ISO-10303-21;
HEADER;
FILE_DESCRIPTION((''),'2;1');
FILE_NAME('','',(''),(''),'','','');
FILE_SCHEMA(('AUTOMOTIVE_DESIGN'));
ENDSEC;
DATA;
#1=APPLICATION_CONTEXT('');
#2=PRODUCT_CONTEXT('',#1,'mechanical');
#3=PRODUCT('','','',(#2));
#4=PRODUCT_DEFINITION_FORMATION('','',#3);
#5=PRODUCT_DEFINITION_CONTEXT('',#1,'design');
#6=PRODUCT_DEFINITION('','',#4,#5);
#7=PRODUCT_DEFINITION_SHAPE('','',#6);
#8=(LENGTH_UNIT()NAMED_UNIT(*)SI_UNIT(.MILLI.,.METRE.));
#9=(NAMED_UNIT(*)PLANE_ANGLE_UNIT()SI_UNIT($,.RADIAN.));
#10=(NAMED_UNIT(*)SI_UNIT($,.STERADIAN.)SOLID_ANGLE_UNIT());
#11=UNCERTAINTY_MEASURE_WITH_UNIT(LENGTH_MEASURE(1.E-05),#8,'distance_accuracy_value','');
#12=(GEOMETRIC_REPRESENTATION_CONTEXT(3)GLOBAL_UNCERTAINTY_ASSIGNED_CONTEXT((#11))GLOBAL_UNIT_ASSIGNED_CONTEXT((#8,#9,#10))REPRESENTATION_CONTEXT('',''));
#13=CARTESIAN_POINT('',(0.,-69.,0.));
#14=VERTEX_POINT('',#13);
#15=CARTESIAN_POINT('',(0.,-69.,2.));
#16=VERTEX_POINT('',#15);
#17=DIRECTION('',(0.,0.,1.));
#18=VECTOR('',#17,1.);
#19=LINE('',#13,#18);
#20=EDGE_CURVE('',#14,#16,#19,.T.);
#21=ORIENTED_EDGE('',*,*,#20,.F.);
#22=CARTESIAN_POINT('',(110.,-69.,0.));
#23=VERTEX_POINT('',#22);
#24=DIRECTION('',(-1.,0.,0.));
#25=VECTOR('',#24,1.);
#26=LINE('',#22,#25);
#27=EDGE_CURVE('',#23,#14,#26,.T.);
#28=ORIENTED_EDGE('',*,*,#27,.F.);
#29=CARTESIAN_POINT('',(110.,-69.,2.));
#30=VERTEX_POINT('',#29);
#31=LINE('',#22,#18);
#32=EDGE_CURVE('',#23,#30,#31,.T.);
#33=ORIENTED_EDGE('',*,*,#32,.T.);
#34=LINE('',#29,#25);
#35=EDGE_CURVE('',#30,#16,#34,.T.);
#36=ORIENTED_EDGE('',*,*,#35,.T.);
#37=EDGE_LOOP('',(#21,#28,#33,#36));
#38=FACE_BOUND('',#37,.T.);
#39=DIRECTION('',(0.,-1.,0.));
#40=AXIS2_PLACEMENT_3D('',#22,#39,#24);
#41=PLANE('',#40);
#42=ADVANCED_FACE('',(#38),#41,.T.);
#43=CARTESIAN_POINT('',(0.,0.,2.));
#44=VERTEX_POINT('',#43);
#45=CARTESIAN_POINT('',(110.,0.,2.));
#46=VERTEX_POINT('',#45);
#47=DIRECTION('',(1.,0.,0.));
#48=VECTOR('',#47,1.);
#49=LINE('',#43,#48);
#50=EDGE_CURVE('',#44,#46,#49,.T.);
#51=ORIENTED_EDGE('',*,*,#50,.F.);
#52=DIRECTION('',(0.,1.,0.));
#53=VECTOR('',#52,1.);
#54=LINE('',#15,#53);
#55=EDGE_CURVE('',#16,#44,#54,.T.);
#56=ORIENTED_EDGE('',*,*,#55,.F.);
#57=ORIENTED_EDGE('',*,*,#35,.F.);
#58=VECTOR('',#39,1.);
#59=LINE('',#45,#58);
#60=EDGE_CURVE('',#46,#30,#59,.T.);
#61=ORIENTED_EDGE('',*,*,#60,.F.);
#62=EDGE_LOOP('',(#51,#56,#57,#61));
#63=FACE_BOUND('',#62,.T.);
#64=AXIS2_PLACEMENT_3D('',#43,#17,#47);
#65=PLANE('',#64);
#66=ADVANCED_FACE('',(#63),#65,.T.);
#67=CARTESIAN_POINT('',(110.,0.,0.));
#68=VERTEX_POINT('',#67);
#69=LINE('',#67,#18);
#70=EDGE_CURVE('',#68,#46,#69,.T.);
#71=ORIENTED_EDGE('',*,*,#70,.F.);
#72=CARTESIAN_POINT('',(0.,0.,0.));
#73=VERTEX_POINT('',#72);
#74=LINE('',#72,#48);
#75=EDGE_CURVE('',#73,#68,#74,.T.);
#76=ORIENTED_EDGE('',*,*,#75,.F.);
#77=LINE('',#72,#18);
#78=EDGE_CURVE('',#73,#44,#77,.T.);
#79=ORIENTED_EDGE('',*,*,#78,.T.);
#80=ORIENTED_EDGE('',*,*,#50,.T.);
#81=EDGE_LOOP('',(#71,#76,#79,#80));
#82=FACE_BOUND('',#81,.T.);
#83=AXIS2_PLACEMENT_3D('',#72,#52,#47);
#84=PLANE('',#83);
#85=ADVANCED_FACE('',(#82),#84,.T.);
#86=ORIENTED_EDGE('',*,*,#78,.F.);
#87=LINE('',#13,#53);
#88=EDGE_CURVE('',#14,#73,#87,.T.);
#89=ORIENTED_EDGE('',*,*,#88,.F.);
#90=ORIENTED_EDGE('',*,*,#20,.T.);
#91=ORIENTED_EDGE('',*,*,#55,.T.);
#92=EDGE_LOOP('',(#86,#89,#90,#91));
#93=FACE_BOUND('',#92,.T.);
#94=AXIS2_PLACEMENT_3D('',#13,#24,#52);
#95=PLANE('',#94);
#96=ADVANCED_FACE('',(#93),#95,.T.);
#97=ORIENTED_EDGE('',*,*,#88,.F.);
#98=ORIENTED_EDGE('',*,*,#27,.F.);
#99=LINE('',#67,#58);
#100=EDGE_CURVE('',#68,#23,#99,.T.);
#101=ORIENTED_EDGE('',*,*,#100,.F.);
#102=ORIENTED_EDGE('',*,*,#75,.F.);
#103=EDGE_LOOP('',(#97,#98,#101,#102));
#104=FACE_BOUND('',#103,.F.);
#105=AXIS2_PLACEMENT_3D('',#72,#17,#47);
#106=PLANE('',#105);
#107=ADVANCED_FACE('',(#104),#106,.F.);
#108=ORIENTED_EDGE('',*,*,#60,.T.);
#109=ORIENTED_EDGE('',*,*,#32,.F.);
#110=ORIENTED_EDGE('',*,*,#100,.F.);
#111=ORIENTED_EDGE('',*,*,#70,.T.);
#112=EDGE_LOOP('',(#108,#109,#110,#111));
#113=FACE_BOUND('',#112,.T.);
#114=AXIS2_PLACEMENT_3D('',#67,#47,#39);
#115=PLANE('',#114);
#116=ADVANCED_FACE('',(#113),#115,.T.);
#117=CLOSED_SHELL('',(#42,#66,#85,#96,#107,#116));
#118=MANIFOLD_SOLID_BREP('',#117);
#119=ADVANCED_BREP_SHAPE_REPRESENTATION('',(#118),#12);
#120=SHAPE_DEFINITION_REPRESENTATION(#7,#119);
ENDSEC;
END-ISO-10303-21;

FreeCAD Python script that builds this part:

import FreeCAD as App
import Part
import Sketcher

V = App.Vector


def add_polygon(sketch, points):
    """Adds a closed chain of lines whose ends are joined by coincident constraints."""
    first, n = sketch.GeometryCount, len(points)
    for a, b in zip(points, points[1:] + points[:1]):
        sketch.addGeometry(Part.LineSegment(App.Vector(*a, 0), App.Vector(*b, 0)), False)
    for i in range(n):
        sketch.addConstraint(Sketcher.Constraint("Coincident", first + i, 2, first + (i + 1) % n, 1))

doc = App.newDocument("Part")
params = doc.addObject("Spreadsheet::Sheet", "Params")
for row, (alias, value) in enumerate([
    ("sketch1_width", "110 mm"),
    ("sketch1_height", "69 mm"),
    ("pad1_length", "2 mm"),
], start=1):
    params.set(f"A{row}", alias)
    params.set(f"B{row}", "=" + value)
    params.setAlias(f"B{row}", alias)

body = doc.addObject("PartDesign::Body", "Body")

sketch1 = body.newObject("Sketcher::SketchObject", "Sketch")
sketch1.AttachmentSupport = (doc.getObject("XY_Plane"), [""])
sketch1.MapMode = "FlatFace"
add_polygon(sketch1, [(110, 0), (0, 0), (0, -69), (110, -69)])
sketch1.addConstraint(Sketcher.Constraint("Horizontal", 0))
sketch1.addConstraint(Sketcher.Constraint("Vertical", 1))
sketch1.addConstraint(Sketcher.Constraint("Horizontal", 2))
sketch1.addConstraint(Sketcher.Constraint("Vertical", 3))
sketch1.addConstraint(Sketcher.Constraint("Coincident", 0, 2, -1, 1))
sketch1.addConstraint(Sketcher.Constraint("DistanceX", 0, 2, 0, 1, 110.0))
sketch1.addConstraint(Sketcher.Constraint("DistanceY", 1, 2, 1, 1, 69.0))
sketch1.setExpression("Constraints[9]", "Params.sketch1_width")
sketch1.setExpression("Constraints[10]", "Params.sketch1_height")
pad1 = body.newObject("PartDesign::Pad", "Pad")
pad1.Profile = sketch1
pad1.setExpression("Length", "Params.pad1_length")

doc.recompute()
